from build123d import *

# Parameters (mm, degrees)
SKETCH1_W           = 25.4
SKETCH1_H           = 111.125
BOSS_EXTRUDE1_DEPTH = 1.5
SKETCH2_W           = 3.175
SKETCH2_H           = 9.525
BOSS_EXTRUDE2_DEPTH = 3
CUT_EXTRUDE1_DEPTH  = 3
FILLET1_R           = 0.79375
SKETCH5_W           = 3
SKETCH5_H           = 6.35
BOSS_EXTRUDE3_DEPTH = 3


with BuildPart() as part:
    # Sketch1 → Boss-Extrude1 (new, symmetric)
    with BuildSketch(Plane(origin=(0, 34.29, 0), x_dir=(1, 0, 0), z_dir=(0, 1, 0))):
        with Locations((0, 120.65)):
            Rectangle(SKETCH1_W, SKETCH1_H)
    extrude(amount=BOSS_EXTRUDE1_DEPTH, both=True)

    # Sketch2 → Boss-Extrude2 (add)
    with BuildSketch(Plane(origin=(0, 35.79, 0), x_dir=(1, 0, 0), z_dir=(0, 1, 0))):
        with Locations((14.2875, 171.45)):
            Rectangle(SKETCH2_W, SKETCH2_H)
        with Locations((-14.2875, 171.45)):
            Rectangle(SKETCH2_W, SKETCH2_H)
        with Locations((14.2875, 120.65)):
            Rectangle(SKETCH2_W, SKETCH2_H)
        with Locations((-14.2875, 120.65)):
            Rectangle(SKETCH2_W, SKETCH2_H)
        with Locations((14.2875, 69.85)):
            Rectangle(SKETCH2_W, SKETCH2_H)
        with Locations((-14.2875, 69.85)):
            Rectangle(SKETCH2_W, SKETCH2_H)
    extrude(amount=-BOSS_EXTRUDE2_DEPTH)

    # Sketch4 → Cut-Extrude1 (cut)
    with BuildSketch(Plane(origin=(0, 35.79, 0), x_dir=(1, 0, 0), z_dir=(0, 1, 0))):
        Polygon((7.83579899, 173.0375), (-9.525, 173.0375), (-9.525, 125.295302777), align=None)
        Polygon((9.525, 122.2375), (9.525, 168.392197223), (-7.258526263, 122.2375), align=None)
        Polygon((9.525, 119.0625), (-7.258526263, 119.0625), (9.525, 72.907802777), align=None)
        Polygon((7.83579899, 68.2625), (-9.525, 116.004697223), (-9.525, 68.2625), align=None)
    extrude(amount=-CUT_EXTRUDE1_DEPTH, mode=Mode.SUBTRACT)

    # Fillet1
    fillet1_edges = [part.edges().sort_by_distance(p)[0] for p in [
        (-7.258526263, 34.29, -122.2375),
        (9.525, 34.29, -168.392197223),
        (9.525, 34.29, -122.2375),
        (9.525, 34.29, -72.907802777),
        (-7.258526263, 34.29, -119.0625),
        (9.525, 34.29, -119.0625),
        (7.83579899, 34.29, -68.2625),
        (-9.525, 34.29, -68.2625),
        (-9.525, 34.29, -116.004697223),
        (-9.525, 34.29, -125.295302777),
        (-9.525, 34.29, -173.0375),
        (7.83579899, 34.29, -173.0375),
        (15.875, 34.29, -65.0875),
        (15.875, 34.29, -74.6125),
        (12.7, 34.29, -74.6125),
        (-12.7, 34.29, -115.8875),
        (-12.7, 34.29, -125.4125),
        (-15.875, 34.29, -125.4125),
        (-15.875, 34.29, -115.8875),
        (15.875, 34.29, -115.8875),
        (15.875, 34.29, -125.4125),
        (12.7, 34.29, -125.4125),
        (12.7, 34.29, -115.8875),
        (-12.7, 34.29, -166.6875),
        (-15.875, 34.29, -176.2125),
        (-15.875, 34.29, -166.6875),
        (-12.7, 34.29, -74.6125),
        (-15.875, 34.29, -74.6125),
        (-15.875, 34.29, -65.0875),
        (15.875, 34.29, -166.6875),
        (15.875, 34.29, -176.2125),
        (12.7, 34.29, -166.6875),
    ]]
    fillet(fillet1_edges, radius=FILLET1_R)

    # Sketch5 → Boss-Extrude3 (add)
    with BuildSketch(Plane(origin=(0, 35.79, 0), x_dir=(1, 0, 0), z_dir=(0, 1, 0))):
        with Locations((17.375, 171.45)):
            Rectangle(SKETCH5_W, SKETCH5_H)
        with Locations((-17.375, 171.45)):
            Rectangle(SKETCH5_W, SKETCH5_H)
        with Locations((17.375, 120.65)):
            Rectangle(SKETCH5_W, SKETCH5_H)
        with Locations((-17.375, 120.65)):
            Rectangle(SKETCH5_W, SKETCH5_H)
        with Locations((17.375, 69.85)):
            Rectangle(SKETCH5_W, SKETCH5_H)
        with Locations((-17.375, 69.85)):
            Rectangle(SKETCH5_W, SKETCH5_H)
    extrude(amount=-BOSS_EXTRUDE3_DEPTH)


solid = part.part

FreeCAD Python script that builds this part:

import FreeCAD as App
import Part
import Sketcher

V = App.Vector
Q = App.Units.Quantity


def edges_at(feature, points):
    """Names of the edges that pass closest to the given points."""
    edges = feature.Shape.Edges
    near = lambda p: min(range(len(edges)), key=lambda i: edges[i].distToShape(Part.Vertex(*p))[0])
    return sorted({f"Edge{near(p) + 1}" for p in points})


def add_polygon(sketch, points):
    """Adds a closed chain of lines whose ends are joined by coincident constraints."""
    first, n = sketch.GeometryCount, len(points)
    for a, b in zip(points, points[1:] + points[:1]):
        sketch.addGeometry(Part.LineSegment(App.Vector(*a, 0), App.Vector(*b, 0)), False)
    for i in range(n):
        sketch.addConstraint(Sketcher.Constraint("Coincident", first + i, 2, first + (i + 1) % n, 1))

doc = App.newDocument("Part")
params = doc.addObject("Spreadsheet::Sheet", "Params")
for row, (alias, value) in enumerate([
    ("sketch1_width", "1 in"),
    ("sketch1_height", "4.375 in"),
    ("pad1_length", "3 mm"),
    ("sketch2_width", "0.125 in"),
    ("sketch2_height", "0.375 in"),
    ("pad2_length", "3 mm"),
    ("pocket1_length", "3 mm"),
    ("fillet_radius", "0.03125 in"),
    ("sketch4_height", "0.25 in"),
    ("pad3_length", "3 mm"),
], start=1):
    params.set(f"A{row}", alias)
    params.set(f"B{row}", "=" + value)
    params.setAlias(f"B{row}", alias)

body = doc.addObject("PartDesign::Body", "Body")

# Sketch on XZ plane
sketch1 = doc.addObject("Sketcher::SketchObject", "Sketch")
body.addObject(sketch1)
sketch1.AttachmentSupport = (doc.XZ_Plane, [""])
sketch1.MapMode = "FlatFace"
sketch1.AttachmentOffset = App.Placement(V(0, 0, -1.35 * 25.4), App.Rotation())
add_polygon(sketch1, [(-13, -176), (-13, -65), (13, -65), (13, -176)])  # lines 0-3
sketch1.addConstraint([
    Sketcher.Constraint("Vertical", 0),
    Sketcher.Constraint("Horizontal", 1),
    Sketcher.Constraint("Vertical", 2),
    Sketcher.Constraint("Horizontal", 3),
    Sketcher.Constraint("DistanceX", 1, 1, 1, 2, Q("1 in")),
    Sketcher.Constraint("DistanceX", 0, 2, -1, 1, Q("0.5 in")),
    Sketcher.Constraint("DistanceY", 0, 1, 0, 2, Q("4.375 in")),
    Sketcher.Constraint("DistanceY", 0, 2, -1, 1, Q("2.5625 in")),
])
sketch1.setExpression("Constraints[8]", "Params.sketch1_width")
sketch1.setExpression("Constraints[10]", "Params.sketch1_height")
pad1 = doc.addObject("PartDesign::Pad", "Pad")
body.addObject(pad1)
pad1.Profile = sketch1
pad1.setExpression("Length", "Params.pad1_length")
pad1.Midplane = True

# Sketch on XZ plane
sketch2 = doc.addObject("Sketcher::SketchObject", "Sketch001")
body.addObject(sketch2)
sketch2.AttachmentSupport = (doc.XZ_Plane, [""])
sketch2.MapMode = "FlatFace"
sketch2.AttachmentOffset = App.Placement(V(0, 0, -35.79), App.Rotation())
add_polygon(sketch2, [(12.7, -176.2), (12.7, -166.7), (15.9, -166.7), (15.9, -176.2)])  # lines 0-3
add_polygon(sketch2, [(-15.9, -176.2), (-15.9, -166.7), (-12.7, -166.7), (-12.7, -176.2)])  # lines 4-7
add_polygon(sketch2, [(12.7, -125.4), (12.7, -115.9), (15.9, -115.9), (15.9, -125.4)])  # lines 8-11
add_polygon(sketch2, [(-15.9, -125.4), (-15.9, -115.9), (-12.7, -115.9), (-12.7, -125.4)])  # lines 12-15
add_polygon(sketch2, [(12.7, -74.6), (12.7, -65.1), (15.9, -65.1), (15.9, -74.6)])  # lines 16-19
add_polygon(sketch2, [(-15.9, -74.6), (-15.9, -65.1), (-12.7, -65.1), (-12.7, -74.6)])  # lines 20-23
sketch2.addConstraint([
    Sketcher.Constraint("Vertical", 0),
    Sketcher.Constraint("Horizontal", 1),
    Sketcher.Constraint("Vertical", 2),
    Sketcher.Constraint("Horizontal", 3),
    Sketcher.Constraint("Vertical", 4),
    Sketcher.Constraint("Horizontal", 5),
    Sketcher.Constraint("Vertical", 6),
    Sketcher.Constraint("Horizontal", 7),
    Sketcher.Constraint("Vertical", 8),
    Sketcher.Constraint("Horizontal", 9),
    Sketcher.Constraint("Vertical", 10),
    Sketcher.Constraint("Horizontal", 11),
    Sketcher.Constraint("Vertical", 12),
    Sketcher.Constraint("Horizontal", 13),
    Sketcher.Constraint("Vertical", 14),
    Sketcher.Constraint("Horizontal", 15),
    Sketcher.Constraint("Vertical", 16),
    Sketcher.Constraint("Horizontal", 17),
    Sketcher.Constraint("Vertical", 18),
    Sketcher.Constraint("Horizontal", 19),
    Sketcher.Constraint("Vertical", 20),
    Sketcher.Constraint("Horizontal", 21),
    Sketcher.Constraint("Vertical", 22),
    Sketcher.Constraint("Horizontal", 23),
    Sketcher.Constraint("Symmetric", 1, 2, 4, 2, -2),
    Sketcher.Constraint("Symmetric", 3, 2, 6, 2, -2),
    Sketcher.Constraint("Symmetric", 9, 2, 12, 2, -2),
    Sketcher.Constraint("Symmetric", 11, 2, 14, 2, -2),
    Sketcher.Constraint("Symmetric", 17, 2, 20, 2, -2),
    Sketcher.Constraint("Symmetric", 19, 2, 22, 2, -2),
    Sketcher.Constraint("Vertical", 3, 2, 8, 2),
    Sketcher.Constraint("Vertical", 2, 2, 9, 2),
    Sketcher.Constraint("Vertical", 11, 2, 16, 2),
    Sketcher.Constraint("Vertical", 10, 2, 17, 2),
    Sketcher.Constraint("Equal", 6, 8),
    Sketcher.Constraint("Equal", 14, 16),
    Sketcher.Constraint("DistanceX", 5, 2, 0, 2, Q("1 in")),
    Sketcher.Constraint("DistanceY", 0, 2, 8, 2, Q("2 in")),
    Sketcher.Constraint("DistanceY", 8, 2, 16, 2, Q("2 in")),
    Sketcher.Constraint("DistanceX", 1, 1, 1, 2, Q("0.125 in")),
    Sketcher.Constraint("DistanceY", 0, 1, 0, 2, Q("0.375 in")),
    Sketcher.Constraint("DistanceY", 0, 2, -1, 1, Q("6.5625 in")),
])
sketch2.setExpression("Constraints[63]", "Params.sketch2_width")
sketch2.setExpression("Constraints[64]", "Params.sketch2_height")
pad2 = doc.addObject("PartDesign::Pad", "Pad001")
body.addObject(pad2)
pad2.Profile = sketch2
pad2.setExpression("Length", "Params.pad2_length")

# Sketch on XZ plane
sketch3 = doc.addObject("Sketcher::SketchObject", "Sketch002")
body.addObject(sketch3)
sketch3.AttachmentSupport = (doc.XZ_Plane, [""])
sketch3.MapMode = "FlatFace"
sketch3.AttachmentOffset = App.Placement(V(0, 0, -35.79), App.Rotation())
add_polygon(sketch3, [(7.835799, -173.0375), (-9.525, -173.0375), (-9.525, -125.295303)])  # lines 0-2
add_polygon(sketch3, [(9.525, -122.2375), (9.525, -168.392197), (-7.258526, -122.2375)])  # lines 3-5
add_polygon(sketch3, [(9.525, -119.0625), (-7.258526, -119.0625), (9.525, -72.907803)])  # lines 6-8
add_polygon(sketch3, [(7.835799, -68.2625), (-9.525, -116.004697), (-9.525, -68.2625)])  # lines 9-11
sketch3.addConstraint([
    Sketcher.Constraint("Horizontal", 0),
    Sketcher.Constraint("Vertical", 1),
    Sketcher.Constraint("Vertical", 3),
    Sketcher.Constraint("Horizontal", 5),
    Sketcher.Constraint("Horizontal", 6),
    Sketcher.Constraint("Vertical", 8),
    Sketcher.Constraint("Vertical", 10),
    Sketcher.Constraint("Horizontal", 11),
    Sketcher.Constraint("Parallel", 2, 4),
    Sketcher.Constraint("Parallel", 7, 9),
    Sketcher.Constraint("Vertical", 4, 2, 6, 2),
    Sketcher.Constraint("Vertical", 5, 2, 7, 2),
    Sketcher.Constraint("Vertical", 1, 2, 9, 2),
    Sketcher.Constraint("Vertical", 2, 2, 11, 2),
    Sketcher.Constraint("Equal", 3, 8),
    Sketcher.Constraint("DistanceY", 0, 2, 4, 2, Q("2 in")),
    Sketcher.Constraint("DistanceY", 6, 2, 10, 2, Q("2 in")),
    Sketcher.Constraint("DistanceX", 0, 2, 3, 2, Q("0.75 in")),
    Sketcher.Constraint("DistanceX", 0, 2, -1, 1, Q("0.375 in")),
    Sketcher.Constraint("DistanceY", 0, 2, -1, 1, Q("6.8125 in")),
    Sketcher.Constraint("DistanceY", 6, 2, -1, 1, Q("4.6875 in")),
    Sketcher.Constraint("DistanceY", 1, 2, 7, 2, Q("2.0625 in")),
    Sketcher.Constraint("DistanceX", 0, 2, 0, 1, Q("17.360799 mm")),
    Sketcher.Constraint("DistanceX", 5, 1, 5, 2, Q("16.783526 mm")),
])
pocket1 = doc.addObject("PartDesign::Pocket", "Pocket")
body.addObject(pocket1)
pocket1.Profile = sketch3
pocket1.setExpression("Length", "Params.pocket1_length")
pocket1.Reversed = True
doc.recompute()

fillet = doc.addObject("PartDesign::Fillet", "Fillet")
body.addObject(fillet)
fillet.Base = (pocket1, edges_at(pocket1, [
    (-7.259, 34.29, -122.237),
    (9.525, 34.29, -168.392),
    (9.525, 34.29, -122.237),
    (9.525, 34.29, -72.908),
    (-7.259, 34.29, -119.062),
    (9.525, 34.29, -119.062),
    (7.836, 34.29, -68.263),
    (-9.525, 34.29, -68.263),
    (-9.525, 34.29, -116.005),
    (-9.525, 34.29, -125.295),
    (-9.525, 34.29, -173.037),
    (7.836, 34.29, -173.037),
    (15.875, 34.29, -65.088),
    (15.875, 34.29, -74.612),
    (12.7, 34.29, -74.612),
    (-12.7, 34.29, -115.888),
    (-12.7, 34.29, -125.412),
    (-15.875, 34.29, -125.412),
    (-15.875, 34.29, -115.888),
    (15.875, 34.29, -115.888),
    (15.875, 34.29, -125.412),
    (12.7, 34.29, -125.412),
    (12.7, 34.29, -115.888),
    (-12.7, 34.29, -166.688),
    (-15.875, 34.29, -176.213),
    (-15.875, 34.29, -166.688),
    (-12.7, 34.29, -74.612),
    (-15.875, 34.29, -74.612),
    (-15.875, 34.29, -65.088),
    (15.875, 34.29, -166.688),
    (15.875, 34.29, -176.213),
    (12.7, 34.29, -166.688),
]))
fillet.setExpression("Radius", "Params.fillet_radius")

# Sketch on XZ plane
sketch4 = doc.addObject("Sketcher::SketchObject", "Sketch003")
body.addObject(sketch4)
sketch4.AttachmentSupport = (doc.XZ_Plane, [""])
sketch4.MapMode = "FlatFace"
sketch4.AttachmentOffset = App.Placement(V(0, 0, -35.79), App.Rotation())
add_polygon(sketch4, [(15.9, -174.6), (15.9, -168.3), (18.9, -168.3), (18.9, -174.6)])  # lines 0-3
add_polygon(sketch4, [(-18.9, -174.6), (-18.9, -168.3), (-15.9, -168.3), (-15.9, -174.6)])  # lines 4-7
add_polygon(sketch4, [(15.9, -123.8), (15.9, -117.5), (18.9, -117.5), (18.9, -123.8)])  # lines 8-11
add_polygon(sketch4, [(-18.9, -123.8), (-18.9, -117.5), (-15.9, -117.5), (-15.9, -123.8)])  # lines 12-15
add_polygon(sketch4, [(15.9, -73), (15.9, -66.7), (18.9, -66.7), (18.9, -73)])  # lines 16-19
add_polygon(sketch4, [(-18.9, -73), (-18.9, -66.7), (-15.9, -66.7), (-15.9, -73)])  # lines 20-23
sketch4.addConstraint([
    Sketcher.Constraint("Vertical", 0),
    Sketcher.Constraint("Horizontal", 1),
    Sketcher.Constraint("Vertical", 2),
    Sketcher.Constraint("Horizontal", 3),
    Sketcher.Constraint("Vertical", 4),
    Sketcher.Constraint("Horizontal", 5),
    Sketcher.Constraint("Vertical", 6),
    Sketcher.Constraint("Horizontal", 7),
    Sketcher.Constraint("Vertical", 8),
    Sketcher.Constraint("Horizontal", 9),
    Sketcher.Constraint("Vertical", 10),
    Sketcher.Constraint("Horizontal", 11),
    Sketcher.Constraint("Vertical", 12),
    Sketcher.Constraint("Horizontal", 13),
    Sketcher.Constraint("Vertical", 14),
    Sketcher.Constraint("Horizontal", 15),
    Sketcher.Constraint("Vertical", 16),
    Sketcher.Constraint("Horizontal", 17),
    Sketcher.Constraint("Vertical", 18),
    Sketcher.Constraint("Horizontal", 19),
    Sketcher.Constraint("Vertical", 20),
    Sketcher.Constraint("Horizontal", 21),
    Sketcher.Constraint("Vertical", 22),
    Sketcher.Constraint("Horizontal", 23),
    Sketcher.Constraint("Symmetric", 1, 2, 4, 2, -2),
    Sketcher.Constraint("Symmetric", 3, 2, 6, 2, -2),
    Sketcher.Constraint("Symmetric", 9, 2, 12, 2, -2),
    Sketcher.Constraint("Symmetric", 11, 2, 14, 2, -2),
    Sketcher.Constraint("Symmetric", 17, 2, 20, 2, -2),
    Sketcher.Constraint("Symmetric", 19, 2, 22, 2, -2),
    Sketcher.Constraint("Vertical", 3, 2, 8, 2),
    Sketcher.Constraint("Vertical", 2, 2, 9, 2),
    Sketcher.Constraint("Vertical", 11, 2, 16, 2),
    Sketcher.Constraint("Vertical", 10, 2, 17, 2),
    Sketcher.Constraint("Equal", 6, 8),
    Sketcher.Constraint("Equal", 14, 16),
    Sketcher.Constraint("DistanceY", 0, 2, 8, 2, Q("2 in")),
    Sketcher.Constraint("DistanceY", 8, 2, 16, 2, Q("2 in")),
    Sketcher.Constraint("DistanceY", 0, 1, 0, 2, Q("0.25 in")),
    Sketcher.Constraint("DistanceX", 5, 2, 0, 2, Q("1.25 in")),
    Sketcher.Constraint("DistanceY", 0, 2, -1, 1, Q("6.625 in")),
    Sketcher.Constraint("DistanceX", 1, 1, 1, 2, Q("3 mm")),
])
sketch4.setExpression("Constraints[62]", "Params.sketch4_height")
pad3 = doc.addObject("PartDesign::Pad", "Pad002")
body.addObject(pad3)
pad3.Profile = sketch4
pad3.setExpression("Length", "Params.pad3_length")

doc.recompute()
